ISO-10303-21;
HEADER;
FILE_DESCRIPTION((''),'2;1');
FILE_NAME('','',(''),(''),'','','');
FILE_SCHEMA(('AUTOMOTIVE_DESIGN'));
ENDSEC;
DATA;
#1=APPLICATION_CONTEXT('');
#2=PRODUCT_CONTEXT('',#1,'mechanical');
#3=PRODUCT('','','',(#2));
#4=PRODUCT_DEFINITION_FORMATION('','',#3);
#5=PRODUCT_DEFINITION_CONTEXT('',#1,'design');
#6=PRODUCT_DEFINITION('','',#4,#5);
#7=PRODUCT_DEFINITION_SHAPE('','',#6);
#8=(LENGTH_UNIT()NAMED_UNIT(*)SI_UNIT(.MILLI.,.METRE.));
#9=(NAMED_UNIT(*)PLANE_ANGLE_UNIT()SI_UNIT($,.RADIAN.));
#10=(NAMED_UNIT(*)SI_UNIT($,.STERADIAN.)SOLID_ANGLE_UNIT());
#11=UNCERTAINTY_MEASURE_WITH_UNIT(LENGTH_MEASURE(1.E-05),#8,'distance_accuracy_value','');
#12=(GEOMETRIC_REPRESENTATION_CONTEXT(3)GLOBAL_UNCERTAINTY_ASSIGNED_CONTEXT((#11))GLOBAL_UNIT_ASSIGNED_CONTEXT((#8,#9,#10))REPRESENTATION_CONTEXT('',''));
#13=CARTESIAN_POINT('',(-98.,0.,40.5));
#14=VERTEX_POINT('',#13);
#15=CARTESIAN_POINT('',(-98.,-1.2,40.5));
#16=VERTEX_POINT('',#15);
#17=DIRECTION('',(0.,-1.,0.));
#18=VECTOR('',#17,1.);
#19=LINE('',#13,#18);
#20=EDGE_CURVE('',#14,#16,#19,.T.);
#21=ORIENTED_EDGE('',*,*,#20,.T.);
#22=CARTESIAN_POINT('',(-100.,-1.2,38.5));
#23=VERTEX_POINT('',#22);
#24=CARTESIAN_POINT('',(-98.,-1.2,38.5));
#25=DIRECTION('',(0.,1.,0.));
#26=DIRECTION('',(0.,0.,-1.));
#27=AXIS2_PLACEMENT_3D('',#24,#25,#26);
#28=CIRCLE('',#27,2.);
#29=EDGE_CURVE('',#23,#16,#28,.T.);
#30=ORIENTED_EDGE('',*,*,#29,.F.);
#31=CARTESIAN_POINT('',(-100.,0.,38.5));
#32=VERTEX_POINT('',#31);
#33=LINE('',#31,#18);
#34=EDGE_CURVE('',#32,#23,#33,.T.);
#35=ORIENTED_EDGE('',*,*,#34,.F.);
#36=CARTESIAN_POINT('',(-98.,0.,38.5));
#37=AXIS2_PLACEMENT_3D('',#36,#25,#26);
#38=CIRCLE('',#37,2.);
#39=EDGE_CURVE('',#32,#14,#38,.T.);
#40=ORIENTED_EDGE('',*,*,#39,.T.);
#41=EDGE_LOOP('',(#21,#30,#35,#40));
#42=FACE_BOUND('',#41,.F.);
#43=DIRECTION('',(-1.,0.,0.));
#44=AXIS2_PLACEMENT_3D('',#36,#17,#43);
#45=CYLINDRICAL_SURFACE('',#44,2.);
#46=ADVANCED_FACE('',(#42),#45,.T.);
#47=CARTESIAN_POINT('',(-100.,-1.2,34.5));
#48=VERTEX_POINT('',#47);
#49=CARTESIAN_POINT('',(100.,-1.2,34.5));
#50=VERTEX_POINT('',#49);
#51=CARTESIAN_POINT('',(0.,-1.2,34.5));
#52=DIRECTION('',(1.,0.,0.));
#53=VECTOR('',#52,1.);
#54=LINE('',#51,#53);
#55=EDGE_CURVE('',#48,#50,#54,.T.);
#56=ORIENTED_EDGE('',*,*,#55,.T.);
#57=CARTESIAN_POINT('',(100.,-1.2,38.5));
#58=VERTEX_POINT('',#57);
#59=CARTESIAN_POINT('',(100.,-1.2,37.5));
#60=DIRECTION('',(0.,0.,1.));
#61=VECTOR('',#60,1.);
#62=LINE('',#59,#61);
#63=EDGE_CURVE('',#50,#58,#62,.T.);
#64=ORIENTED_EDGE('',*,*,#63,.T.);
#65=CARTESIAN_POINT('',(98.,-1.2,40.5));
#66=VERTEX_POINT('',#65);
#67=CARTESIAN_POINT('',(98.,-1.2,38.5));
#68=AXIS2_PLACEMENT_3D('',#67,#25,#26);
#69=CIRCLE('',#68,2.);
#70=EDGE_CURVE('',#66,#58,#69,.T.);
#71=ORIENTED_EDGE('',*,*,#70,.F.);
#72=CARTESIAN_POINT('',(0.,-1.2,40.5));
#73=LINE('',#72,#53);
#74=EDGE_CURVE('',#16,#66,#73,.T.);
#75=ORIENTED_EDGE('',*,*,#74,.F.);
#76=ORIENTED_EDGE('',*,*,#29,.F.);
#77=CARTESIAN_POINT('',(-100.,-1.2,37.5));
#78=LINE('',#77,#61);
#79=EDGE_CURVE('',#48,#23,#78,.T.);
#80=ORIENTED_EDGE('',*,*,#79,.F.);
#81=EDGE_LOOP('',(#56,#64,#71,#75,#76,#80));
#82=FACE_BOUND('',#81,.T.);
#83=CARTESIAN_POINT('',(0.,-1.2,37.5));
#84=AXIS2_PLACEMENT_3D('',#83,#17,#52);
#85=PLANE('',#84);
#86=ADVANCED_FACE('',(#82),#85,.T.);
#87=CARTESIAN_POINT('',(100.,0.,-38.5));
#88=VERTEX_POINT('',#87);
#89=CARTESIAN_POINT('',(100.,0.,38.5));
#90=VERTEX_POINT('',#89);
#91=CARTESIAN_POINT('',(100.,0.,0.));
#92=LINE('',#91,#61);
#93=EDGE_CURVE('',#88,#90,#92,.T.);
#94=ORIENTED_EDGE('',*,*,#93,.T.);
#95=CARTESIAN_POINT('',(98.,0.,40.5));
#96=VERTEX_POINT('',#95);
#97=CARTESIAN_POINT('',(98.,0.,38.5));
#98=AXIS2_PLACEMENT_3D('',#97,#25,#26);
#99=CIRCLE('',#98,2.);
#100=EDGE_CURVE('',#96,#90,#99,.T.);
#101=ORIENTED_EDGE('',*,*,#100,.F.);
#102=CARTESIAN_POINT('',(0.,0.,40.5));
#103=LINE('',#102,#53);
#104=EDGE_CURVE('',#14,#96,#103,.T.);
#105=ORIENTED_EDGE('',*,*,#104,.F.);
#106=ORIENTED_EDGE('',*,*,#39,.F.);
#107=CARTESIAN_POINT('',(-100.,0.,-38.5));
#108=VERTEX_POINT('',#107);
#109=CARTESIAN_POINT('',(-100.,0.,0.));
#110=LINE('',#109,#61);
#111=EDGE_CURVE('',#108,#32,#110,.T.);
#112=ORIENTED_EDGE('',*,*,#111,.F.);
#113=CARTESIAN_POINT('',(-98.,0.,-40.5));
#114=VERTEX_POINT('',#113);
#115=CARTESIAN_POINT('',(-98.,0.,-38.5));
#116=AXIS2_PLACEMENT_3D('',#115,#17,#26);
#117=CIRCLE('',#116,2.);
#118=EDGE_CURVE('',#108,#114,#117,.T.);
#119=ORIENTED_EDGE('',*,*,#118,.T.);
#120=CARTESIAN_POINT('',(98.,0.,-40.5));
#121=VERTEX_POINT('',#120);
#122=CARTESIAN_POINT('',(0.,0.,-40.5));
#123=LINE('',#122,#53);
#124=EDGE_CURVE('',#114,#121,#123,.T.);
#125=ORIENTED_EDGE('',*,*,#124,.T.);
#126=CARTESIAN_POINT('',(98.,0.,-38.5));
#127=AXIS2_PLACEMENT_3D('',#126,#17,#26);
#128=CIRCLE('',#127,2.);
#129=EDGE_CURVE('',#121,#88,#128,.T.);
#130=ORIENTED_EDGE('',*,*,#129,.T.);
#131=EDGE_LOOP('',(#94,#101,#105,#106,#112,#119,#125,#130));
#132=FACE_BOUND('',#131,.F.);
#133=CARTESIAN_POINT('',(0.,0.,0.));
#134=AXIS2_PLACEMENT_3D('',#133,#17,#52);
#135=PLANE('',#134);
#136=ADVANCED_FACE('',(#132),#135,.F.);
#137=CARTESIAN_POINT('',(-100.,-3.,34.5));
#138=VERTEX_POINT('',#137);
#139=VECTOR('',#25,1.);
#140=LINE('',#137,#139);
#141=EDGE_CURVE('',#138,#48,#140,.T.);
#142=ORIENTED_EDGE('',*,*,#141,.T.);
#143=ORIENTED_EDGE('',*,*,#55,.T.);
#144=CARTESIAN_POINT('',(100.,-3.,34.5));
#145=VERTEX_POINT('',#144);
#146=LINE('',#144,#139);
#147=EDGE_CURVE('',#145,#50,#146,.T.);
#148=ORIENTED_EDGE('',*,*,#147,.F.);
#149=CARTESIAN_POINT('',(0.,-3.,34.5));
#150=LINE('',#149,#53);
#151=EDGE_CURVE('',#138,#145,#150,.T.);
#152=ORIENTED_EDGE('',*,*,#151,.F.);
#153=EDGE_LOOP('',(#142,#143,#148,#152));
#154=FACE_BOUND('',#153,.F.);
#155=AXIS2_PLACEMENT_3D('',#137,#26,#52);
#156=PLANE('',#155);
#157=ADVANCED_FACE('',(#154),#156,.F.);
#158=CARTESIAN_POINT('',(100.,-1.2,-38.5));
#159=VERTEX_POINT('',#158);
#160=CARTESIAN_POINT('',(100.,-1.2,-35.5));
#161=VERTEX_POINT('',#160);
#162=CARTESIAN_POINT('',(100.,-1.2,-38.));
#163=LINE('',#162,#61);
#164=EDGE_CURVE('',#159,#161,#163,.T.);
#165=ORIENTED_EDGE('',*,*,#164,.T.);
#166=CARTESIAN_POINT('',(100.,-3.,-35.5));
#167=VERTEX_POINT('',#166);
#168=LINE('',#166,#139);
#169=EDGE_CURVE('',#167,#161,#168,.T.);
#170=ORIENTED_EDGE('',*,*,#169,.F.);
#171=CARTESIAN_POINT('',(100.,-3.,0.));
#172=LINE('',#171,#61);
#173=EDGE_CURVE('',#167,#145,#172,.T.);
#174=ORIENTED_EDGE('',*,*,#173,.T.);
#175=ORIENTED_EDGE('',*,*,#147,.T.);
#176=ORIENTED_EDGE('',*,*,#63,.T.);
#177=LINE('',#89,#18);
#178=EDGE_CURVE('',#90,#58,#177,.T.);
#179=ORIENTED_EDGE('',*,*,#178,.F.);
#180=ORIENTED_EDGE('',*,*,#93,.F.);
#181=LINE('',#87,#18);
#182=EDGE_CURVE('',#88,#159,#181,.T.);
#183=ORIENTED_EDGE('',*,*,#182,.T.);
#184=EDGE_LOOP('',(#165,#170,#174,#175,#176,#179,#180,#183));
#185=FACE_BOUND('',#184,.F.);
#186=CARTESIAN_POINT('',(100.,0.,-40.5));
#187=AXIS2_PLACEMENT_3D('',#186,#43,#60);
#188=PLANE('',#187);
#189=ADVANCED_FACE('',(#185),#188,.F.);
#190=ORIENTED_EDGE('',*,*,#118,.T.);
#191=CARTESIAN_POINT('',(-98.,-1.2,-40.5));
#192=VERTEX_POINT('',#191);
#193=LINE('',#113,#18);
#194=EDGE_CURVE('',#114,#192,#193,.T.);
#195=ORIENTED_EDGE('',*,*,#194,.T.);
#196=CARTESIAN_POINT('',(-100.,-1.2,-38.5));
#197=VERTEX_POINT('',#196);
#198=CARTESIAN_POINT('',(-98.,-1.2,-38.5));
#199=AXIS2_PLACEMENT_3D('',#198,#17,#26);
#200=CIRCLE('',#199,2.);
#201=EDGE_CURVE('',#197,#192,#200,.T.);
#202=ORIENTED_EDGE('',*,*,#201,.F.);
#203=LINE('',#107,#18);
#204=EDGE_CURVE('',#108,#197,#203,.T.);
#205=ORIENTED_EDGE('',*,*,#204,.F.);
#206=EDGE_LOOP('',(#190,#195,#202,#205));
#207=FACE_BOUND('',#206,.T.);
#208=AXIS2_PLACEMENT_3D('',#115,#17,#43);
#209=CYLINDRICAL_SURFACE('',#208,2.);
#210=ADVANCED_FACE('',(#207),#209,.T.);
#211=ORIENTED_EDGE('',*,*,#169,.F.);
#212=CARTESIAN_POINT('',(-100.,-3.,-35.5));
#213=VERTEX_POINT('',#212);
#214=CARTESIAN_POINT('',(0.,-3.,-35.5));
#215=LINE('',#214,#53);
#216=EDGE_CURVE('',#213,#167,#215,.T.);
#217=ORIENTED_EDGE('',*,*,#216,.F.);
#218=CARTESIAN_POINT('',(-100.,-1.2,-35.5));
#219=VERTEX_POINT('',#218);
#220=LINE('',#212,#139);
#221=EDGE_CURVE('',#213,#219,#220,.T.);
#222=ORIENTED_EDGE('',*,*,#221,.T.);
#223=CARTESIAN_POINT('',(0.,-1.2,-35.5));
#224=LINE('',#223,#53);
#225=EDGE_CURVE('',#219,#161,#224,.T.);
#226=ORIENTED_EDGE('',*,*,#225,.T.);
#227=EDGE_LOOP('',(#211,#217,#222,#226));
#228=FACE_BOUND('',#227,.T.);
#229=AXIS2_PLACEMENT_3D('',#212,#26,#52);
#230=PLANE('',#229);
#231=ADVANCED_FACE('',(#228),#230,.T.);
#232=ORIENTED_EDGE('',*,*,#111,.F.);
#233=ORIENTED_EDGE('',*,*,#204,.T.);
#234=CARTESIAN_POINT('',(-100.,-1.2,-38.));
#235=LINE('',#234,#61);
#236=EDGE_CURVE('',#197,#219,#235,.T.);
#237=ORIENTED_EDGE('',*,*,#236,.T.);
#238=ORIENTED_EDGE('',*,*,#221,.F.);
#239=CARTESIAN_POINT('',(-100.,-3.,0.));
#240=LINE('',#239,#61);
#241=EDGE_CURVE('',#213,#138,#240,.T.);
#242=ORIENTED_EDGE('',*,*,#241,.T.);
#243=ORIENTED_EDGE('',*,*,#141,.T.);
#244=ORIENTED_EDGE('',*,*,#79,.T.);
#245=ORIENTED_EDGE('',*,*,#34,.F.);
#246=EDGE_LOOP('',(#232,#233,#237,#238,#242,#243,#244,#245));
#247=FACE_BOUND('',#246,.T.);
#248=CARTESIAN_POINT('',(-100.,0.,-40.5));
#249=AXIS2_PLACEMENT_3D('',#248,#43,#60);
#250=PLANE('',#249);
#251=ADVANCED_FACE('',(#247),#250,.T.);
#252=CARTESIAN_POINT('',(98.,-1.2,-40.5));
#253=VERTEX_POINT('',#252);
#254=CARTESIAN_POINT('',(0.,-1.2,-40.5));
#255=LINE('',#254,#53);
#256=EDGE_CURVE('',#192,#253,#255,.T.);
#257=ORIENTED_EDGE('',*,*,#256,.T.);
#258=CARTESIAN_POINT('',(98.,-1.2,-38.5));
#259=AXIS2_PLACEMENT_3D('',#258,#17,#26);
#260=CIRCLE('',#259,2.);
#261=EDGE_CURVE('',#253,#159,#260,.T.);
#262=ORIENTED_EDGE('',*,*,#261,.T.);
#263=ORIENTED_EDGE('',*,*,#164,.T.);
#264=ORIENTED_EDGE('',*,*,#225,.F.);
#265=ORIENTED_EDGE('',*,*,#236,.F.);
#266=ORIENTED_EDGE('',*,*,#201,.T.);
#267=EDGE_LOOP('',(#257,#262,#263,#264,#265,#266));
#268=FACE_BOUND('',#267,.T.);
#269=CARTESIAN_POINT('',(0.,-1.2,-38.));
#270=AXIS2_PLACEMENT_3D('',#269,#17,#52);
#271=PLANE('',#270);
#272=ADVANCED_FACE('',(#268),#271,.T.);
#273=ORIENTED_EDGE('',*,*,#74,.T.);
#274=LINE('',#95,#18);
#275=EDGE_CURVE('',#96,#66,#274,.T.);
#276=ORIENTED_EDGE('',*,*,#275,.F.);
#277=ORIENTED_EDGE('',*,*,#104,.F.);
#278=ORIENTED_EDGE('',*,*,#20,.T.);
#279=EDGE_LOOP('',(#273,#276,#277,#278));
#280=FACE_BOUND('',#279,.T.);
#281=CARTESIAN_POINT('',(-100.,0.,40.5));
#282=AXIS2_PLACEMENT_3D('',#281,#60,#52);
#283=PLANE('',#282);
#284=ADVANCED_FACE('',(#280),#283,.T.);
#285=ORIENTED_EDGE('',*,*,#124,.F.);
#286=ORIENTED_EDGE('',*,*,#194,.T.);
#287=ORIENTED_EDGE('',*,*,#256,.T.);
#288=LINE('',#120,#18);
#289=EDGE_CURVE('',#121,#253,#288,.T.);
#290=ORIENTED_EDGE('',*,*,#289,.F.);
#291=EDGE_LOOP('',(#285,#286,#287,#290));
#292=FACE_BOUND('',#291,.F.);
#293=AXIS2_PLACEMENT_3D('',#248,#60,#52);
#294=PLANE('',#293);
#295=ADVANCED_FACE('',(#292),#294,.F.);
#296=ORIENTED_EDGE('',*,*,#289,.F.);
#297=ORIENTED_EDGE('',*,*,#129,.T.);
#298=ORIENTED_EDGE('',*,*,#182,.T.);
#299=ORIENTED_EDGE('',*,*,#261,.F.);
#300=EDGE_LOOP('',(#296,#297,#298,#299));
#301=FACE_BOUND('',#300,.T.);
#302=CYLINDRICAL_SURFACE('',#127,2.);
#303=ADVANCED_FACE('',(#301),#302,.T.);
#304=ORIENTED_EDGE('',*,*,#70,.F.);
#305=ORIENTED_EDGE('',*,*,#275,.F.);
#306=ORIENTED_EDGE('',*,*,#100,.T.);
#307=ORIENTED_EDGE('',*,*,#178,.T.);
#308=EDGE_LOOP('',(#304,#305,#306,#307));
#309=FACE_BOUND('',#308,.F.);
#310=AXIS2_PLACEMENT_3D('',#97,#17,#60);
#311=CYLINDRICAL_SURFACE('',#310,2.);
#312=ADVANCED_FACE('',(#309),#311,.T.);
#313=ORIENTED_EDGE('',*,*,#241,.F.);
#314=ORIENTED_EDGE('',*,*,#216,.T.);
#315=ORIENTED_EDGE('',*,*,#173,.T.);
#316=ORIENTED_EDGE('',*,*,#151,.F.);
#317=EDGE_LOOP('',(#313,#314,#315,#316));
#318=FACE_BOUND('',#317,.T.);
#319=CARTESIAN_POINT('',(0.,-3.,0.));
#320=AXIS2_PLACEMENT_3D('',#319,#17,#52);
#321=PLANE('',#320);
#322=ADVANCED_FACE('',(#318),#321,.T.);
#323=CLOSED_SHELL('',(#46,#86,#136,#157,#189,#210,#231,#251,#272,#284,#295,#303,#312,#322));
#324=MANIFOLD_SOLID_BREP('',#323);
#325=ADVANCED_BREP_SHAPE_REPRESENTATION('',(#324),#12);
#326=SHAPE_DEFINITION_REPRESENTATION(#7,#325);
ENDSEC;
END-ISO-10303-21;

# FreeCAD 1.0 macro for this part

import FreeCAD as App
import Part
import Sketcher
Q = App.Units.Quantity


def edges_at(feature, points):
    """Names of the edges that pass closest to the given points."""
    edges = feature.Shape.Edges
    near = lambda p: min(range(len(edges)), key=lambda i: edges[i].distToShape(Part.Vertex(*p))[0])
    return sorted({f"Edge{near(p) + 1}" for p in points})

doc = App.newDocument("Part")
params = doc.addObject("Spreadsheet::Sheet", "Params")
for row, (alias, value) in enumerate([
    ("sketch1_width", "200 mm"),
    ("sketch1_height", "81 mm"),
    ("pad1_length", "3 mm"),
    ("sketch2_width", "200 mm"),
    ("sketch2_height", "6 mm"),
    ("sketch2_height2", "5 mm"),
    ("pocket1_length", "1.8 mm"),
    ("fillet_radius", "2 mm"),
], start=1):
    params.set(f"A{row}", alias)
    params.set(f"B{row}", "=" + value)
    params.setAlias(f"B{row}", alias)

body = doc.addObject("PartDesign::Body", "Body")

# Sketch on XZ plane
sketch1 = doc.addObject("Sketcher::SketchObject", "Sketch")
body.addObject(sketch1)
sketch1.AttachmentSupport = (doc.XZ_Plane, [""])
sketch1.MapMode = "FlatFace"
sketch1.addGeometry(Part.LineSegment(App.Vector(-100, 40, 0), App.Vector(-100, -40, 0)), False)
sketch1.addGeometry(Part.LineSegment(App.Vector(-100, -40, 0), App.Vector(100, -40, 0)), False)
sketch1.addGeometry(Part.LineSegment(App.Vector(100, -40, 0), App.Vector(100, 40, 0)), False)
sketch1.addGeometry(Part.LineSegment(App.Vector(100, 40, 0), App.Vector(-100, 40, 0)), False)
sketch1.addConstraint(Sketcher.Constraint("Coincident", 0, 2, 1, 1))
sketch1.addConstraint(Sketcher.Constraint("Coincident", 1, 2, 2, 1))
sketch1.addConstraint(Sketcher.Constraint("Coincident", 2, 2, 3, 1))
sketch1.addConstraint(Sketcher.Constraint("Coincident", 3, 2, 0, 1))
sketch1.addConstraint(Sketcher.Constraint("Vertical", 0))
sketch1.addConstraint(Sketcher.Constraint("Horizontal", 1))
sketch1.addConstraint(Sketcher.Constraint("Vertical", 2))
sketch1.addConstraint(Sketcher.Constraint("Horizontal", 3))
sketch1.addConstraint(Sketcher.Constraint("Symmetric", 0, 2, 2, 2, -1, 1))
sketch1.addConstraint(Sketcher.Constraint("DistanceX", 1, 1, 1, 2, Q("200 mm")))
sketch1.addConstraint(Sketcher.Constraint("DistanceY", 0, 2, 0, 1, Q("81 mm")))
sketch1.setExpression("Constraints[9]", "Params.sketch1_width")
sketch1.setExpression("Constraints[10]", "Params.sketch1_height")
pad1 = doc.addObject("PartDesign::Pad", "Pad")
body.addObject(pad1)
pad1.Profile = sketch1
pad1.setExpression("Length", "Params.pad1_length")

# Sketch on XZ plane
sketch2 = doc.addObject("Sketcher::SketchObject", "Sketch001")
body.addObject(sketch2)
sketch2.AttachmentSupport = (doc.XZ_Plane, [""])
sketch2.MapMode = "FlatFace"
sketch2.AttachmentOffset = App.Placement(App.Vector(0, 0, 3), App.Rotation())
sketch2.addGeometry(Part.LineSegment(App.Vector(-100, 40, 0), App.Vector(-100, 34, 0)), False)
sketch2.addGeometry(Part.LineSegment(App.Vector(-100, 34, 0), App.Vector(100, 34, 0)), False)
sketch2.addGeometry(Part.LineSegment(App.Vector(100, 34, 0), App.Vector(100, 40, 0)), False)
sketch2.addGeometry(Part.LineSegment(App.Vector(100, 40, 0), App.Vector(-100, 40, 0)), False)
sketch2.addGeometry(Part.LineSegment(App.Vector(-100, -36, 0), App.Vector(-100, -40, 0)), False)
sketch2.addGeometry(Part.LineSegment(App.Vector(-100, -40, 0), App.Vector(100, -40, 0)), False)
sketch2.addGeometry(Part.LineSegment(App.Vector(100, -40, 0), App.Vector(100, -36, 0)), False)
sketch2.addGeometry(Part.LineSegment(App.Vector(100, -36, 0), App.Vector(-100, -36, 0)), False)
sketch2.addConstraint(Sketcher.Constraint("Coincident", 0, 2, 1, 1))
sketch2.addConstraint(Sketcher.Constraint("Coincident", 1, 2, 2, 1))
sketch2.addConstraint(Sketcher.Constraint("Coincident", 2, 2, 3, 1))
sketch2.addConstraint(Sketcher.Constraint("Coincident", 3, 2, 0, 1))
sketch2.addConstraint(Sketcher.Constraint("Coincident", 4, 2, 5, 1))
sketch2.addConstraint(Sketcher.Constraint("Coincident", 5, 2, 6, 1))
sketch2.addConstraint(Sketcher.Constraint("Coincident", 6, 2, 7, 1))
sketch2.addConstraint(Sketcher.Constraint("Coincident", 7, 2, 4, 1))
sketch2.addConstraint(Sketcher.Constraint("Vertical", 0))
sketch2.addConstraint(Sketcher.Constraint("Horizontal", 1))
sketch2.addConstraint(Sketcher.Constraint("Vertical", 2))
sketch2.addConstraint(Sketcher.Constraint("Horizontal", 3))
sketch2.addConstraint(Sketcher.Constraint("Vertical", 4))
sketch2.addConstraint(Sketcher.Constraint("Horizontal", 5))
sketch2.addConstraint(Sketcher.Constraint("Vertical", 6))
sketch2.addConstraint(Sketcher.Constraint("Horizontal", 7))
sketch2.addConstraint(Sketcher.Constraint("Symmetric", 2, 2, 4, 2, -1, 1))
sketch2.addConstraint(Sketcher.Constraint("Vertical", 3, 2, 4, 2))
sketch2.addConstraint(Sketcher.Constraint("Vertical", 2, 2, 5, 2))
sketch2.addConstraint(Sketcher.Constraint("DistanceX", 1, 1, 1, 2, Q("200 mm")))
sketch2.addConstraint(Sketcher.Constraint("DistanceY", 0, 2, 0, 1, Q("6 mm")))
sketch2.addConstraint(Sketcher.Constraint("DistanceY", 4, 2, 4, 1, Q("5 mm")))
sketch2.addConstraint(Sketcher.Constraint("DistanceY", 4, 2, 0, 2, Q("75 mm")))
sketch2.setExpression("Constraints[19]", "Params.sketch2_width")
sketch2.setExpression("Constraints[20]", "Params.sketch2_height")
sketch2.setExpression("Constraints[21]", "Params.sketch2_height2")
pocket1 = doc.addObject("PartDesign::Pocket", "Pocket")
body.addObject(pocket1)
pocket1.Profile = sketch2
pocket1.setExpression("Length", "Params.pocket1_length")
doc.recompute()

fillet = doc.addObject("PartDesign::Fillet", "Fillet")
body.addObject(fillet)
fillet.Base = (pocket1, edges_at(pocket1, [
    (-100, -0.6, -40.5),
    (-100, -0.6, 40.5),
    (100, -0.6, -40.5),
    (100, -0.6, 40.5),
]))
fillet.setExpression("Radius", "Params.fillet_radius")

doc.recompute()
